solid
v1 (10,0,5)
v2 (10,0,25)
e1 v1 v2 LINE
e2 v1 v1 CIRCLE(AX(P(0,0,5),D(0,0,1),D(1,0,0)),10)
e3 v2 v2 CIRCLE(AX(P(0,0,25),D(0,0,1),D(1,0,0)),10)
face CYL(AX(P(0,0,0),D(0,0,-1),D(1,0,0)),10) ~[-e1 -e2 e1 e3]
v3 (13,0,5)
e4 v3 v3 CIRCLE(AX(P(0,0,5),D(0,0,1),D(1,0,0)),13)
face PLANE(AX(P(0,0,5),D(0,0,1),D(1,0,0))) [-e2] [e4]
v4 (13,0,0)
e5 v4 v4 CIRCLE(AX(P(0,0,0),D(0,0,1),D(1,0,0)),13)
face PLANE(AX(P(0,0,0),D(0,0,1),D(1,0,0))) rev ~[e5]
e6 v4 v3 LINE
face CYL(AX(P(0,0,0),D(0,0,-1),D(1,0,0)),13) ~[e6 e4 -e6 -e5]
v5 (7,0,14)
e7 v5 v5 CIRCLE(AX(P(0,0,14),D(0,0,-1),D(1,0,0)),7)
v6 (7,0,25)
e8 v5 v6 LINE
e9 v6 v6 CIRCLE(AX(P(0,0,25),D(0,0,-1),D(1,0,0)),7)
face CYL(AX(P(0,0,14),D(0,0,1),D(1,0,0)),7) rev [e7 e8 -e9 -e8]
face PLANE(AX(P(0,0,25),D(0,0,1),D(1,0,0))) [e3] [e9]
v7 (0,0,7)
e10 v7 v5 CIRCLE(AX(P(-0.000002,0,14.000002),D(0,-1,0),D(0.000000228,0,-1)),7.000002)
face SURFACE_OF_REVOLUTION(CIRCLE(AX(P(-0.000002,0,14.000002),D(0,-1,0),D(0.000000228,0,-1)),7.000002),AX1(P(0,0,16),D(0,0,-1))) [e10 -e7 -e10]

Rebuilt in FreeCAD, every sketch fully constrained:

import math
import FreeCAD as App
import Part
import Sketcher

V = App.Vector

doc = App.newDocument("Part")
body = doc.addObject("PartDesign::Body", "Body")

# Sketch on XY plane
sketch1 = doc.addObject("Sketcher::SketchObject", "Sketch")
body.addObject(sketch1)
sketch1.AttachmentSupport = (doc.XY_Plane, [""])
sketch1.MapMode = "FlatFace"
sketch1.addGeometry([
    Part.Circle(V(0, 0, 0), V(0, 0, 1), 13),
    Part.Circle(V(0, 0, 0), V(0, 0, 1), 10),
], False)
sketch1.addConstraint([
    Sketcher.Constraint("Coincident", 0, 3, -1, 1),
    Sketcher.Constraint("Coincident", 1, 3, -1, 1),
    Sketcher.Constraint("Diameter", 0, 26.0),
    Sketcher.Constraint("Diameter", 1, 20.0),
])
pad1 = doc.addObject("PartDesign::Pad", "Pad")
body.addObject(pad1)
pad1.Profile = sketch1
pad1.Length = 5

# Sketch on XY plane
sketch2 = doc.addObject("Sketcher::SketchObject", "Sketch001")
body.addObject(sketch2)
sketch2.AttachmentSupport = (doc.XY_Plane, [""])
sketch2.MapMode = "FlatFace"
sketch2.addGeometry(Part.Circle(V(0, 0, 0), V(0, 0, 1), 10), False)
sketch2.addConstraint([
    Sketcher.Constraint("Coincident", 0, 3, -1, 1),
    Sketcher.Constraint("Diameter", 0, 20.0),
])
pad2 = doc.addObject("PartDesign::Pad", "Pad001")
body.addObject(pad2)
pad2.Profile = sketch2
pad2.Length = 25

# Sketch on XZ plane
sketch3 = doc.addObject("Sketcher::SketchObject", "Sketch002")
body.addObject(sketch3)
sketch3.AttachmentSupport = (doc.XZ_Plane, [""])
sketch3.MapMode = "FlatFace"
sketch3.addGeometry([
    Part.LineSegment(V(7, 25, 0), V(0, 25, 0)),
    Part.LineSegment(V(0, 25, 0), V(0, 7, 0)),
    Part.ArcOfCircle(Part.Circle(V(-0.000002, 14.000002, 0), V(0, 0, 1), 7.000002), math.radians(-89.999987), math.radians(-0.000013)),
    Part.LineSegment(V(7, 14, 0), V(7, 25, 0)),
], False)
sketch3.addConstraint([
    Sketcher.Constraint("Coincident", 0, 2, 1, 1),
    Sketcher.Constraint("Coincident", 1, 2, 2, 1),
    Sketcher.Constraint("Tangent", 2, 2, 3, 1),
    Sketcher.Constraint("Coincident", 3, 2, 0, 1),
    Sketcher.Constraint("Horizontal", 0),
    Sketcher.Constraint("Vertical", 1),
    Sketcher.Constraint("Vertical", 3),
    Sketcher.Constraint("PointOnObject", 2, 3, -2),
    Sketcher.Constraint("PointOnObject", 0, 2, -2),
    Sketcher.Constraint("Radius", 2, 7.000002),
    Sketcher.Constraint("DistanceY", 1, 2, 1, 1, 18.0),
    Sketcher.Constraint("DistanceY", -1, 1, 2, 3, 14.000002),
])
groove = doc.addObject("PartDesign::Groove", "Groove")
body.addObject(groove)
groove.Profile = sketch3
groove.ReferenceAxis = (sketch3, ["V_Axis"])
groove.Angle = 360

doc.recompute()
